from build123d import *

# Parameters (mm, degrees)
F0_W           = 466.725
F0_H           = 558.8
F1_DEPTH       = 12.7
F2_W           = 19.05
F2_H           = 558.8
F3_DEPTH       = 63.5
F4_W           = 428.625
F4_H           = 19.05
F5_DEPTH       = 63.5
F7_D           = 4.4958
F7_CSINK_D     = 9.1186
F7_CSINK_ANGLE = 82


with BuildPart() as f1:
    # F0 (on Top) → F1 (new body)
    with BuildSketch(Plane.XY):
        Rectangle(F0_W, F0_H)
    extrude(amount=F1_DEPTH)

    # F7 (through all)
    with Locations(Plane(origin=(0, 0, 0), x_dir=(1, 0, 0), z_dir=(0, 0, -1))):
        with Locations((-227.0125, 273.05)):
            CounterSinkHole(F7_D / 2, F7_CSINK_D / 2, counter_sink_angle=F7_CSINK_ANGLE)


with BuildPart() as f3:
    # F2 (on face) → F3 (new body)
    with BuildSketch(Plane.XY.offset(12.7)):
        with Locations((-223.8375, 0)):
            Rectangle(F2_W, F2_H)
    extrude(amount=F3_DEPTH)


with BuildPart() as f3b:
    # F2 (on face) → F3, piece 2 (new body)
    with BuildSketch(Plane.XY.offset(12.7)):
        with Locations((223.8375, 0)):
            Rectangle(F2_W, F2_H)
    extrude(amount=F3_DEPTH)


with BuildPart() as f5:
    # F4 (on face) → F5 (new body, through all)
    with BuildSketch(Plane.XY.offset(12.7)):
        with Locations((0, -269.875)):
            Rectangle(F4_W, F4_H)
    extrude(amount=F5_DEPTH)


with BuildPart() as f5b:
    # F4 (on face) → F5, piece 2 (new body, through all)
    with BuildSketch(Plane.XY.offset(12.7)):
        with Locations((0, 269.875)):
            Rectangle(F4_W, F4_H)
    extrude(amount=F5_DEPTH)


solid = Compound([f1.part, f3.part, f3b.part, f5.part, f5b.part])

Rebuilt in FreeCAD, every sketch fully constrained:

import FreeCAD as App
import Part
import Sketcher
from FreeCAD import Vector
Q = App.Units.Quantity


def add_polygon(sketch, points):
    """Adds a closed chain of lines whose ends are joined by coincident constraints."""
    first, n = sketch.GeometryCount, len(points)
    for a, b in zip(points, points[1:] + points[:1]):
        sketch.addGeometry(Part.LineSegment(App.Vector(*a, 0), App.Vector(*b, 0)), False)
    for i in range(n):
        sketch.addConstraint(Sketcher.Constraint("Coincident", first + i, 2, first + (i + 1) % n, 1))

doc = App.newDocument("Part")
body = doc.addObject("PartDesign::Body", "Body")

# Sketch on XY plane
sketch1 = body.newObject("Sketcher::SketchObject", "Sketch")
sketch1.AttachmentSupport = (doc.getObject("XY_Plane"), [""])
sketch1.MapMode = "FlatFace"
add_polygon(sketch1, [(-233, 279), (-233, -279), (233, -279), (233, 279)])  # lines 0-3
sketch1.addConstraint(Sketcher.Constraint("Vertical", 0))
sketch1.addConstraint(Sketcher.Constraint("Horizontal", 1))
sketch1.addConstraint(Sketcher.Constraint("Vertical", 2))
sketch1.addConstraint(Sketcher.Constraint("Horizontal", 3))
sketch1.addConstraint(Sketcher.Constraint("Symmetric", 0, 2, 2, 2, -1, 1))
sketch1.addConstraint(Sketcher.Constraint("DistanceY", 0, 2, 0, 1, Q("22 in")))
sketch1.addConstraint(Sketcher.Constraint("DistanceX", 1, 1, 1, 2, Q("18.375 in")))
pad1 = body.newObject("PartDesign::Pad", "Pad")
pad1.Profile = sketch1
pad1.Length = Q("0.5 in")

# Sketch on XY plane
sketch2 = body.newObject("Sketcher::SketchObject", "Sketch001")
sketch2.AttachmentSupport = (doc.getObject("XY_Plane"), [""])
sketch2.MapMode = "FlatFace"
sketch2.addGeometry(Part.Circle(Vector(-227, -273.1, 0), Vector(0, 0, 1), 2.2), False)
sketch2.addConstraint(Sketcher.Constraint("Diameter", 0, Q("0.177 in")))
sketch2.addConstraint(Sketcher.Constraint("DistanceY", 0, 3, -1, 1, Q("10.75 in")))
sketch2.addConstraint(Sketcher.Constraint("DistanceX", 0, 3, -1, 1, Q("8.9375 in")))
doc.recompute()
hole = body.newObject("PartDesign::Hole", "Hole")
hole.Profile = sketch2
hole.ThreadType = "None"
hole.Diameter = Q("0.177 in")
hole.DepthType = "ThroughAll"
hole.HoleCutType = "Countersink"
hole.HoleCutDiameter = Q("0.359 in")
hole.HoleCutCountersinkAngle = 82
hole.Reversed = True
body2 = doc.addObject("PartDesign::Body", "Body001")

# Sketch on XY plane
sketch3 = body2.newObject("Sketcher::SketchObject", "Sketch002")
sketch3.AttachmentSupport = (doc.getObject("XY_Plane001"), [""])
sketch3.MapMode = "FlatFace"
sketch3.AttachmentOffset = App.Placement(Vector(0, 0, 0.5 * 25.4), App.Rotation())
add_polygon(sketch3, [(-233, 279), (-233, -279), (-214, -279), (-214, 279)])  # lines 0-3
sketch3.addConstraint(Sketcher.Constraint("Vertical", 0))
sketch3.addConstraint(Sketcher.Constraint("Horizontal", 1))
sketch3.addConstraint(Sketcher.Constraint("Vertical", 2))
sketch3.addConstraint(Sketcher.Constraint("Horizontal", 3))
sketch3.addConstraint(Sketcher.Constraint("DistanceY", 0, 2, 0, 1, Q("22 in")))
sketch3.addConstraint(Sketcher.Constraint("DistanceY", 0, 2, -1, 1, Q("11 in")))
sketch3.addConstraint(Sketcher.Constraint("DistanceX", 1, 1, 1, 2, Q("0.75 in")))
sketch3.addConstraint(Sketcher.Constraint("DistanceX", 0, 2, -1, 1, Q("9.1875 in")))
pad2 = body2.newObject("PartDesign::Pad", "Pad001")
pad2.Profile = sketch3
pad2.Length = Q("2.5 in")
body3 = doc.addObject("PartDesign::Body", "Body002")

# Sketch on XY plane
sketch4 = body3.newObject("Sketcher::SketchObject", "Sketch003")
sketch4.AttachmentSupport = (doc.getObject("XY_Plane002"), [""])
sketch4.MapMode = "FlatFace"
sketch4.AttachmentOffset = App.Placement(Vector(0, 0, 0.5 * 25.4), App.Rotation())
add_polygon(sketch4, [(214, 279), (214, -279), (233, -279), (233, 279)])  # lines 0-3
sketch4.addConstraint(Sketcher.Constraint("Vertical", 0))
sketch4.addConstraint(Sketcher.Constraint("Horizontal", 1))
sketch4.addConstraint(Sketcher.Constraint("Vertical", 2))
sketch4.addConstraint(Sketcher.Constraint("Horizontal", 3))
sketch4.addConstraint(Sketcher.Constraint("DistanceY", 0, 2, 0, 1, Q("22 in")))
sketch4.addConstraint(Sketcher.Constraint("DistanceY", 0, 2, -1, 1, Q("11 in")))
sketch4.addConstraint(Sketcher.Constraint("DistanceX", 1, 1, 1, 2, Q("0.75 in")))
sketch4.addConstraint(Sketcher.Constraint("DistanceX", -1, 1, 0, 2, Q("8.4375 in")))
pad3 = body3.newObject("PartDesign::Pad", "Pad002")
pad3.Profile = sketch4
pad3.Length = Q("2.5 in")
body4 = doc.addObject("PartDesign::Body", "Body003")

# Sketch on XY plane
sketch5 = body4.newObject("Sketcher::SketchObject", "Sketch004")
sketch5.AttachmentSupport = (doc.getObject("XY_Plane003"), [""])
sketch5.MapMode = "FlatFace"
sketch5.AttachmentOffset = App.Placement(Vector(0, 0, 0.5 * 25.4), App.Rotation())
add_polygon(sketch5, [(-214, -260), (-214, -279), (214, -279), (214, -260)])  # lines 0-3
sketch5.addConstraint(Sketcher.Constraint("Vertical", 0))
sketch5.addConstraint(Sketcher.Constraint("Horizontal", 1))
sketch5.addConstraint(Sketcher.Constraint("Vertical", 2))
sketch5.addConstraint(Sketcher.Constraint("Horizontal", 3))
sketch5.addConstraint(Sketcher.Constraint("DistanceY", 0, 2, -1, 1, Q("11 in")))
sketch5.addConstraint(Sketcher.Constraint("DistanceY", 0, 2, 0, 1, Q("0.75 in")))
sketch5.addConstraint(Sketcher.Constraint("DistanceX", 1, 1, 1, 2, Q("16.875 in")))
sketch5.addConstraint(Sketcher.Constraint("DistanceX", 0, 2, -1, 1, Q("8.4375 in")))
pad4 = body4.newObject("PartDesign::Pad", "Pad003")
pad4.Profile = sketch5
pad4.Length = Q("2.5 in")
body5 = doc.addObject("PartDesign::Body", "Body004")

# Sketch on XY plane
sketch6 = body5.newObject("Sketcher::SketchObject", "Sketch005")
sketch6.AttachmentSupport = (doc.getObject("XY_Plane004"), [""])
sketch6.MapMode = "FlatFace"
sketch6.AttachmentOffset = App.Placement(Vector(0, 0, 0.5 * 25.4), App.Rotation())
add_polygon(sketch6, [(-214, 279), (-214, 260), (214, 260), (214, 279)])  # lines 0-3
sketch6.addConstraint(Sketcher.Constraint("Vertical", 0))
sketch6.addConstraint(Sketcher.Constraint("Horizontal", 1))
sketch6.addConstraint(Sketcher.Constraint("Vertical", 2))
sketch6.addConstraint(Sketcher.Constraint("Horizontal", 3))
sketch6.addConstraint(Sketcher.Constraint("DistanceY", -1, 1, 2, 2, Q("11 in")))
sketch6.addConstraint(Sketcher.Constraint("DistanceY", 0, 2, 0, 1, Q("0.75 in")))
sketch6.addConstraint(Sketcher.Constraint("DistanceX", 1, 1, 1, 2, Q("16.875 in")))
sketch6.addConstraint(Sketcher.Constraint("DistanceX", 0, 2, -1, 1, Q("8.4375 in")))
pad5 = body5.newObject("PartDesign::Pad", "Pad004")
pad5.Profile = sketch6
pad5.Length = Q("2.5 in")

doc.recompute()
